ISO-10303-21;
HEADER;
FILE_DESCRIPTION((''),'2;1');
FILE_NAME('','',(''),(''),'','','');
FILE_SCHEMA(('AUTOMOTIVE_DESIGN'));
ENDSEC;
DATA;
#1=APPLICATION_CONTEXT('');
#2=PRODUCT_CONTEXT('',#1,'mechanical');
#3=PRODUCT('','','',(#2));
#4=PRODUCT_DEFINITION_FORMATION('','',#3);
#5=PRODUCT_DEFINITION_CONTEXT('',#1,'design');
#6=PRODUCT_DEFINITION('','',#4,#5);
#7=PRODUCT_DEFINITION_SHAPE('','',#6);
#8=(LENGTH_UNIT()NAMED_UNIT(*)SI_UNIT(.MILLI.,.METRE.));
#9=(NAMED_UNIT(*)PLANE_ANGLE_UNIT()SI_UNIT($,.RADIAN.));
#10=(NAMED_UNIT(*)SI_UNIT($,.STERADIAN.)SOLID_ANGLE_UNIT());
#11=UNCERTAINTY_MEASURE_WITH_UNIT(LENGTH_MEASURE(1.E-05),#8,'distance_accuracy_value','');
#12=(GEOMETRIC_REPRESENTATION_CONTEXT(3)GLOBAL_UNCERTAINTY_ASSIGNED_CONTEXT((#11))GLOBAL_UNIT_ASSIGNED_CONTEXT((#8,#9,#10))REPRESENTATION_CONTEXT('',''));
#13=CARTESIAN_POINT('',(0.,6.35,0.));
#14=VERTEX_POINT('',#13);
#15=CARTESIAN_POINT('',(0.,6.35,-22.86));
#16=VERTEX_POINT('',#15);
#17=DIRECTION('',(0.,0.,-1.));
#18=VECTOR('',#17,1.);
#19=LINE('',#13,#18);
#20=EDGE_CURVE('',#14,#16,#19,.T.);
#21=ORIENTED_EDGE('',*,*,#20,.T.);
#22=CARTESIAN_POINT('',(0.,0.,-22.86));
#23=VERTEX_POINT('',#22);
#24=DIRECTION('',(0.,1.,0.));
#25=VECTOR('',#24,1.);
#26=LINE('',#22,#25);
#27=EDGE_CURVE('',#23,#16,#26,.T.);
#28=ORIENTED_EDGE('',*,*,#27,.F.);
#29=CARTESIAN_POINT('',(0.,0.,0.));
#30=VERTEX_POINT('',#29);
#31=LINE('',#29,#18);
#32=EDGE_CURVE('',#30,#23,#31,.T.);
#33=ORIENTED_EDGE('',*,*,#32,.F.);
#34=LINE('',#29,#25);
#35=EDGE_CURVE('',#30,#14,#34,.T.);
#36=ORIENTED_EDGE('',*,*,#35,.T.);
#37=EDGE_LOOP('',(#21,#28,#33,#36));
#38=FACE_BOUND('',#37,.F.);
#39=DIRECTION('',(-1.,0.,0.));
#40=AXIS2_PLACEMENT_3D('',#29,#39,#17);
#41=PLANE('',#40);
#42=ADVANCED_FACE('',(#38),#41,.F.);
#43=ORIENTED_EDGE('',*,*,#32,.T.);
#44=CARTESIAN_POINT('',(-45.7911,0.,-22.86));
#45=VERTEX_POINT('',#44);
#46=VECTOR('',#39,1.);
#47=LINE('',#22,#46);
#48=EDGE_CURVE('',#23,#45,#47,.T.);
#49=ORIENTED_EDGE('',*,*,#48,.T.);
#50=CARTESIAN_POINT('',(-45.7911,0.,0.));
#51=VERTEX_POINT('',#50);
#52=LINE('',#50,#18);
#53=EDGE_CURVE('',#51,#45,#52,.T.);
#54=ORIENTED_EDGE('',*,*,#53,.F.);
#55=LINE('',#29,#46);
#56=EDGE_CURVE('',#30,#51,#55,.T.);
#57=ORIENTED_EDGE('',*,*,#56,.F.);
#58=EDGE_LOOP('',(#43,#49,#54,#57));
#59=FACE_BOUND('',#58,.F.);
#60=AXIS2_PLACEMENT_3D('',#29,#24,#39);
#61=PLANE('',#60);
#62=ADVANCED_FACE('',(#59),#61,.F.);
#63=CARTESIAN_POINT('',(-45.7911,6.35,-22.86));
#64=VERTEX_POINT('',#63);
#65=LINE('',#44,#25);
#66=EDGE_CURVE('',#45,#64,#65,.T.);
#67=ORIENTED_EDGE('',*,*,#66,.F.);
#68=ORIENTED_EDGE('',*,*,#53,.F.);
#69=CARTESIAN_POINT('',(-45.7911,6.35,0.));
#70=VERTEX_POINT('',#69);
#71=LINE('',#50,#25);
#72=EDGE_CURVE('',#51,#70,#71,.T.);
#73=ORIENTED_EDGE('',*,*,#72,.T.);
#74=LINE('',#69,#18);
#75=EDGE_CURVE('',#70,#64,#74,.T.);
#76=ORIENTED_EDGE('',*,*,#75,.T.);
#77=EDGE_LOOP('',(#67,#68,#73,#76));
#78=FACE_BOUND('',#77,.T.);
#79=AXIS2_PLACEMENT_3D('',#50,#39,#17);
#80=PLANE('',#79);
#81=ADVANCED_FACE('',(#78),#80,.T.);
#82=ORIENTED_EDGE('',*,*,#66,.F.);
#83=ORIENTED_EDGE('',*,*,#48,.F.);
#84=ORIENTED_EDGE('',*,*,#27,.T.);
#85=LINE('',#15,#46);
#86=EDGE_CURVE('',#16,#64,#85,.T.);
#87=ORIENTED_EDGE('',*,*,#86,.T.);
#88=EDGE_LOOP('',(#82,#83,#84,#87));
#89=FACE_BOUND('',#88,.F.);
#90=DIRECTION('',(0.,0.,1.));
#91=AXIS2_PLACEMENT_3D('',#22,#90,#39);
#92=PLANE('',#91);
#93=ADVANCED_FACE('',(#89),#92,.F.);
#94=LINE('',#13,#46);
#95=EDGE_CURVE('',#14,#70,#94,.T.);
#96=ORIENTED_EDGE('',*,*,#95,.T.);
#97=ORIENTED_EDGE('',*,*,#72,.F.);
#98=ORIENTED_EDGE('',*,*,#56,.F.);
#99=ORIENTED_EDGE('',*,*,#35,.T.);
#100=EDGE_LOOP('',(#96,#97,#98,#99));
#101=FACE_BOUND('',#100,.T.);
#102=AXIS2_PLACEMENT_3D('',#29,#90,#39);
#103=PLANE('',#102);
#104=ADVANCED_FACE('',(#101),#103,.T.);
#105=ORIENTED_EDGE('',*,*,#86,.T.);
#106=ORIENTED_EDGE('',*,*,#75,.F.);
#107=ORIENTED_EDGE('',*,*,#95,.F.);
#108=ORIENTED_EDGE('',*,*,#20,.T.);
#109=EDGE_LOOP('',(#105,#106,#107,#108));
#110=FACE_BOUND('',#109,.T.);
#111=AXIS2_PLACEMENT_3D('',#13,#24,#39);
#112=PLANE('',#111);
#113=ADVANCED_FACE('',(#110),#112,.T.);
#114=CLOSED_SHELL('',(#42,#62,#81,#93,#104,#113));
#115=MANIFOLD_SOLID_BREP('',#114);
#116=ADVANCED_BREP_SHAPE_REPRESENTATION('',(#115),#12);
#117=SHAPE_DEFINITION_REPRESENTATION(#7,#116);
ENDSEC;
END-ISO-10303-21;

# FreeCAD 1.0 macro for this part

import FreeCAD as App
import Part
import Sketcher

V = App.Vector
Q = App.Units.Quantity

doc = App.newDocument("Part")
body = doc.addObject("PartDesign::Body", "Body")

# Sketch on XZ plane
sketch1 = body.newObject("Sketcher::SketchObject", "Sketch")
sketch1.AttachmentSupport = (doc.getObject("XZ_Plane"), [""])
sketch1.MapMode = "FlatFace"
sketch1.addGeometry(Part.LineSegment(V(-46, 0, 0), V(0, 0, 0)), False)
sketch1.addGeometry(Part.LineSegment(V(0, 0, 0), V(0, -23, 0)), False)
sketch1.addGeometry(Part.LineSegment(V(0, -23, 0), V(-46, -23, 0)), False)
sketch1.addGeometry(Part.LineSegment(V(-46, -23, 0), V(-46, 0, 0)), False)
sketch1.addConstraint(Sketcher.Constraint("Coincident", 0, 2, 1, 1))
sketch1.addConstraint(Sketcher.Constraint("Coincident", 1, 2, 2, 1))
sketch1.addConstraint(Sketcher.Constraint("Coincident", 2, 2, 3, 1))
sketch1.addConstraint(Sketcher.Constraint("Coincident", 3, 2, 0, 1))
sketch1.addConstraint(Sketcher.Constraint("Horizontal", 0))
sketch1.addConstraint(Sketcher.Constraint("Vertical", 1))
sketch1.addConstraint(Sketcher.Constraint("Horizontal", 2))
sketch1.addConstraint(Sketcher.Constraint("Vertical", 3))
sketch1.addConstraint(Sketcher.Constraint("Coincident", 0, 2, -1, 1))
sketch1.addConstraint(Sketcher.Constraint("DistanceY", 1, 2, 1, 1, Q("0.9 in")))
sketch1.addConstraint(Sketcher.Constraint("DistanceX", 0, 1, 0, 2, Q("1.8028 in")))
pad1 = body.newObject("PartDesign::Pad", "Pad")
pad1.Profile = sketch1
pad1.Length = Q("0.25 in")
pad1.Reversed = True

doc.recompute()
